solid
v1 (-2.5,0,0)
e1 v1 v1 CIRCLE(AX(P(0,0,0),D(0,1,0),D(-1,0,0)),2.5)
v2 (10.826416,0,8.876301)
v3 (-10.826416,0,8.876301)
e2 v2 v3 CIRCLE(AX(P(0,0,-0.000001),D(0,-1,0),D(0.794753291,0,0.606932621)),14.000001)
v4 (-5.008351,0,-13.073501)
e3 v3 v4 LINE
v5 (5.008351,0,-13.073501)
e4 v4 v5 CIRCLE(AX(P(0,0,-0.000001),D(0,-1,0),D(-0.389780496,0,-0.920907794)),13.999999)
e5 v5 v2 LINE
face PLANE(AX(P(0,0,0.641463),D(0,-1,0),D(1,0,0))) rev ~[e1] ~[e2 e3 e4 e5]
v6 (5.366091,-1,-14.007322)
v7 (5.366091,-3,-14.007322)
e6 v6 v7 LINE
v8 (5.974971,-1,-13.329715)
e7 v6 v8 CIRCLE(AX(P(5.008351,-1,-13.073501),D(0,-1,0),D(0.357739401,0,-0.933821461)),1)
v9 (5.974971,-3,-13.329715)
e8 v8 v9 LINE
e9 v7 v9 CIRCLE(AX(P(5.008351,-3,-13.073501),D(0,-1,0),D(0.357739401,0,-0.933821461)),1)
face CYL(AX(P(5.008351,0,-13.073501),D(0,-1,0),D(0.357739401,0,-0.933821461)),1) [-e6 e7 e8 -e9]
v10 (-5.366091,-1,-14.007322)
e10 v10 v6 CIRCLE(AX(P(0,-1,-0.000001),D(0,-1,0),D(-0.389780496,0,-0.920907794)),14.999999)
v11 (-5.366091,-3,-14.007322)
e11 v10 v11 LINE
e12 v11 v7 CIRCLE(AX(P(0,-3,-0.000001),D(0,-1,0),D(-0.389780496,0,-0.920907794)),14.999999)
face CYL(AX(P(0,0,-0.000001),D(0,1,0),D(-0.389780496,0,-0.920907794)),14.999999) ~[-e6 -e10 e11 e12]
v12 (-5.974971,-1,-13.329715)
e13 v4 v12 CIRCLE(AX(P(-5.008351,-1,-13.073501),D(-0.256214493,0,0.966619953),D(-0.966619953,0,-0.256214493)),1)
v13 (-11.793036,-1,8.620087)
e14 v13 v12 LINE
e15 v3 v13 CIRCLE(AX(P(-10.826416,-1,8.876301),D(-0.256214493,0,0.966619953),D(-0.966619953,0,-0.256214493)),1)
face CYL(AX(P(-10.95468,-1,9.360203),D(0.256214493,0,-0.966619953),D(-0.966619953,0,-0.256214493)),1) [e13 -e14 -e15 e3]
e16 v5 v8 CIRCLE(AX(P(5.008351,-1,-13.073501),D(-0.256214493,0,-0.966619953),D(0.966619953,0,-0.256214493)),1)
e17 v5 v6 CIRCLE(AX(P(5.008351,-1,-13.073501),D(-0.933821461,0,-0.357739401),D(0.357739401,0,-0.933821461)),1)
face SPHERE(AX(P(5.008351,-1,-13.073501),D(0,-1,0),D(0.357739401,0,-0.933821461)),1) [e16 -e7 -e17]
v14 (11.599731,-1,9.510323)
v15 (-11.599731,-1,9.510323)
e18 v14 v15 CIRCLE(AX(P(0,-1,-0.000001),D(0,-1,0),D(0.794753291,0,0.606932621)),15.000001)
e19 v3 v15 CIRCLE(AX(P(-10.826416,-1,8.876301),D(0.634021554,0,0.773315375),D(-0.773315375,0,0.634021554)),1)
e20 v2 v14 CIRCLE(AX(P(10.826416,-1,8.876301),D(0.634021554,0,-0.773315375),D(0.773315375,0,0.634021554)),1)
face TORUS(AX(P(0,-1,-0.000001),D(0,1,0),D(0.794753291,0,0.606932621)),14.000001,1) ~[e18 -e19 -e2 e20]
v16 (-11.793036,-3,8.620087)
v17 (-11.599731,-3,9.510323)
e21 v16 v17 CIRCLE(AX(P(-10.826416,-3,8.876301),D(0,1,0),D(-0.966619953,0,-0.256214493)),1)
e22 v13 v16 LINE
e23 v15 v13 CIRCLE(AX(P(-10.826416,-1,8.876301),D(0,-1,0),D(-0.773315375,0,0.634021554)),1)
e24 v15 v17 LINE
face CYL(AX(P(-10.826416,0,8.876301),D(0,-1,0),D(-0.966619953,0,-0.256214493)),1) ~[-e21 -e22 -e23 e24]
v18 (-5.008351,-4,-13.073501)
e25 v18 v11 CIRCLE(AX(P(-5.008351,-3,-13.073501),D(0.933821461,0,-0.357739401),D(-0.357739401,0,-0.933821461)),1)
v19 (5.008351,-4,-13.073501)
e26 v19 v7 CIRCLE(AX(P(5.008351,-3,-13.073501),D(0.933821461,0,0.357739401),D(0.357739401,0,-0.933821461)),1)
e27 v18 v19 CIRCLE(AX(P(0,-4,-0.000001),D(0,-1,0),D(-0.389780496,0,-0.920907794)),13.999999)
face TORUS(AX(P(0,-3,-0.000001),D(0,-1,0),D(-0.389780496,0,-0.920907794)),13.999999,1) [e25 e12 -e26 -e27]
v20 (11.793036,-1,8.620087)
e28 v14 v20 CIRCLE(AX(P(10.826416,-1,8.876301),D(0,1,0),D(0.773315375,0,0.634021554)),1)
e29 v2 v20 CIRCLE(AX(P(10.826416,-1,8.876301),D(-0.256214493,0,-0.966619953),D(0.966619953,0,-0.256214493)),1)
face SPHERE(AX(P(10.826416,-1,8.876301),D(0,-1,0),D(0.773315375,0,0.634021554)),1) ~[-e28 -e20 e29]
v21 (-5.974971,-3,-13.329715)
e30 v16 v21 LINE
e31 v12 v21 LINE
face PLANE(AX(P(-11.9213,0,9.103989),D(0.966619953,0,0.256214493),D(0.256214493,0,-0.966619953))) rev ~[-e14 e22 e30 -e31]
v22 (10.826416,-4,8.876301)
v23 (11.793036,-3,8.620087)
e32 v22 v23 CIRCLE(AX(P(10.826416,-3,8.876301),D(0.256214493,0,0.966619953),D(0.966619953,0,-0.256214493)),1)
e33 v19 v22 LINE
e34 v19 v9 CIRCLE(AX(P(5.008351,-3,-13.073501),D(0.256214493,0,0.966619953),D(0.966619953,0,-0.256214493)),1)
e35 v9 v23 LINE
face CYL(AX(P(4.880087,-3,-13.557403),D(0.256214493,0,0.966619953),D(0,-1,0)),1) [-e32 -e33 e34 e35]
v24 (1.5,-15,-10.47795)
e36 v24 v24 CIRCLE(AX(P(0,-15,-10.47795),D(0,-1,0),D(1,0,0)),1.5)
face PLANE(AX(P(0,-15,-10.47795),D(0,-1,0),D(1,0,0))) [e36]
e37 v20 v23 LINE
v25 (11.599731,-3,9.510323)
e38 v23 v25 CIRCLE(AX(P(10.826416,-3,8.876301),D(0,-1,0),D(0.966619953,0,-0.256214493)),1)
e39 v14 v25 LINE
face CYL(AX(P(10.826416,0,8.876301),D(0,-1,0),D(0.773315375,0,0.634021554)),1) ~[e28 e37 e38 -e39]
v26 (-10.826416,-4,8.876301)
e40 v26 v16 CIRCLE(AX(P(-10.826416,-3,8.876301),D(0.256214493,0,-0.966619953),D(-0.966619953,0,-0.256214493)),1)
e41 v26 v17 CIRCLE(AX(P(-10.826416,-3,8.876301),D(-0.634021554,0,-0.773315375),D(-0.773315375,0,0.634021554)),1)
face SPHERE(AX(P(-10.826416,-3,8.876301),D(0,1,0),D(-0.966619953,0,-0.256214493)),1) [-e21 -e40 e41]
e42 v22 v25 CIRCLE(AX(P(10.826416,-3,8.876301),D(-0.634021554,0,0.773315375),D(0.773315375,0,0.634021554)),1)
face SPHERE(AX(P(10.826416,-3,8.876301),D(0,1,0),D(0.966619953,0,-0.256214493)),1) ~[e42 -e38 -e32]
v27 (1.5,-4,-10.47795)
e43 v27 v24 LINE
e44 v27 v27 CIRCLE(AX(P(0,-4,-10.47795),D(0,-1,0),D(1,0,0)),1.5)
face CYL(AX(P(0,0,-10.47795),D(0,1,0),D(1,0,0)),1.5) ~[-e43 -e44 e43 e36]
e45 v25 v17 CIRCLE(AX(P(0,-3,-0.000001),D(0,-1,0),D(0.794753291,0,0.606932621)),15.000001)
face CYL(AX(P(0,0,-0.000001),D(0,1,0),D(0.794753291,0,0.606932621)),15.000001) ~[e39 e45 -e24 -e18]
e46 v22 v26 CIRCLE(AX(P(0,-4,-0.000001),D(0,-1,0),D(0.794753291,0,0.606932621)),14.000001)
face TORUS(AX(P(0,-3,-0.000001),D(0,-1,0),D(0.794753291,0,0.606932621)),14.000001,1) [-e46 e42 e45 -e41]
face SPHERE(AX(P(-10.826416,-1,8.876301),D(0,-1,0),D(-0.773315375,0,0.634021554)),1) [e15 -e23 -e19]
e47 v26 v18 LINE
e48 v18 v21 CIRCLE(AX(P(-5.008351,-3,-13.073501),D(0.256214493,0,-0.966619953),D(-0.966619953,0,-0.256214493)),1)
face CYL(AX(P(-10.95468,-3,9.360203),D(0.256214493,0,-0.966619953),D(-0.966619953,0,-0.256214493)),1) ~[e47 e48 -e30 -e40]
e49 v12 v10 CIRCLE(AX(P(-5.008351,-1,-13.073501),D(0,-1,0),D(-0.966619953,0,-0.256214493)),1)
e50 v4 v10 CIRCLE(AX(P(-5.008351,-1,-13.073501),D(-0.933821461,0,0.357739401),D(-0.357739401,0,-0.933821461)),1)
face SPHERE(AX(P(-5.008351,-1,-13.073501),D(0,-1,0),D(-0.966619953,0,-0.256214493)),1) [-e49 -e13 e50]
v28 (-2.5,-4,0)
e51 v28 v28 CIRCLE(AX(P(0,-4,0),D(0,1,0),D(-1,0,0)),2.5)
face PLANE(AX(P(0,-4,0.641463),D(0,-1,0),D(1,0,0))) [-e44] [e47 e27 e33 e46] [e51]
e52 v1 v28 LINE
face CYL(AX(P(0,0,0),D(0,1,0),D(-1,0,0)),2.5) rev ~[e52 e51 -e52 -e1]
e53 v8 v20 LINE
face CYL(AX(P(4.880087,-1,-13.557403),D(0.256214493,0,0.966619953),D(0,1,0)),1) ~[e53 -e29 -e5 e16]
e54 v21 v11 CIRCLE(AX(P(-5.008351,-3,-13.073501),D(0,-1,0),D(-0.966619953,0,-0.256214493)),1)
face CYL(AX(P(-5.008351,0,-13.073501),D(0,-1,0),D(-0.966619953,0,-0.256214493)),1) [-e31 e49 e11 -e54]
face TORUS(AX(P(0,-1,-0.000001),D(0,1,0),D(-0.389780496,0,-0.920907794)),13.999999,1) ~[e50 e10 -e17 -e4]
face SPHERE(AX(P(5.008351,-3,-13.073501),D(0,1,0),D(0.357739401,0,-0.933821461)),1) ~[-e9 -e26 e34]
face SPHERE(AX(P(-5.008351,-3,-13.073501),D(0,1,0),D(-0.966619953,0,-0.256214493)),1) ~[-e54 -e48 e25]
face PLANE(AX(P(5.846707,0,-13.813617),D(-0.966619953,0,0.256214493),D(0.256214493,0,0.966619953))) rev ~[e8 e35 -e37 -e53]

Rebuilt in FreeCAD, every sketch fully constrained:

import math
import FreeCAD as App
import Part
import Sketcher
Q = App.Units.Quantity


def edges_at(feature, points):
    """Names of the edges that pass closest to the given points."""
    edges = feature.Shape.Edges
    near = lambda p: min(range(len(edges)), key=lambda i: edges[i].distToShape(Part.Vertex(*p))[0])
    return sorted({f"Edge{near(p) + 1}" for p in points})

doc = App.newDocument("Part")
params = doc.addObject("Spreadsheet::Sheet", "Params")
for row, (alias, value) in enumerate([
    ("sketch1_diameter", "3 mm"),
    ("pad1_length", "15 mm"),
    ("sketch2_diameter", "3 mm"),
    ("sketch2_radius", "14.999999 mm"),
    ("pad2_length", "4 mm"),
    ("sketch3_diameter", "5 mm"),
    ("pocket1_length", "25 mm"),
    ("fillet_radius", "1 mm"),
], start=1):
    params.set(f"A{row}", alias)
    params.set(f"B{row}", "=" + value)
    params.setAlias(f"B{row}", alias)

body = doc.addObject("PartDesign::Body", "Body")

sketch1 = doc.addObject("Sketcher::SketchObject", "Sketch")
body.addObject(sketch1)
sketch1.AttachmentSupport = (doc.XZ_Plane, [""])
sketch1.MapMode = "FlatFace"
sketch1.addGeometry(Part.Circle(App.Vector(0, -10.5, 0), App.Vector(0, 0, 1), 1.5), False)
sketch1.addConstraint([
    Sketcher.Constraint("PointOnObject", 0, 3, -2),
    Sketcher.Constraint("Diameter", 0, Q("3 mm")),
    Sketcher.Constraint("DistanceY", 0, 3, -1, 1, Q("10.47795 mm")),
])
sketch1.setExpression("Constraints[1]", "Params.sketch1_diameter")
pad1 = doc.addObject("PartDesign::Pad", "Pad")
body.addObject(pad1)
pad1.Profile = sketch1
pad1.setExpression("Length", "Params.pad1_length")

sketch2 = doc.addObject("Sketcher::SketchObject", "Sketch001")
body.addObject(sketch2)
sketch2.AttachmentSupport = (doc.XZ_Plane, [""])
sketch2.MapMode = "FlatFace"
sketch2.addGeometry([
    Part.LineSegment(App.Vector(-11.9, 9.1, 0), App.Vector(-5.8, -13.8, 0)),
    Part.ArcOfCircle(Part.Circle(App.Vector(0, 0, 0), App.Vector(0, 0, 1), 15), math.radians(-113), math.radians(-67)),
    Part.LineSegment(App.Vector(5.8, -13.8, 0), App.Vector(11.9, 9.1, 0)),
    Part.ArcOfCircle(Part.Circle(App.Vector(0, 0, 0), App.Vector(0, 0, 1), 15), math.radians(37), math.radians(143)),
    Part.Circle(App.Vector(0, -10.5, 0), App.Vector(0, 0, 1), 1.5),
], False)
sketch2.addConstraint([
    Sketcher.Constraint("Coincident", 0, 2, 1, 1),
    Sketcher.Constraint("Coincident", 1, 2, 2, 1),
    Sketcher.Constraint("Coincident", 2, 2, 3, 1),
    Sketcher.Constraint("Coincident", 3, 2, 0, 1),
    Sketcher.Constraint("Coincident", 1, 3, -1, 1),
    Sketcher.Constraint("Coincident", 3, 3, -1, 1),
    Sketcher.Constraint("Equal", 1, 3),
    Sketcher.Constraint("PointOnObject", 4, 3, -2),
    Sketcher.Constraint("Horizontal", 0, 2, 1, 2),
    Sketcher.Constraint("Horizontal", 2, 2, 3, 2),
    Sketcher.Constraint("Diameter", 4, Q("3 mm")),
    Sketcher.Constraint("Radius", 1, Q("14.999999 mm")),
    Sketcher.Constraint("DistanceX", -1, 1, 2, 2, Q("11.9213 mm")),
    Sketcher.Constraint("DistanceY", 4, 3, -1, 1, Q("10.47795 mm")),
    Sketcher.Constraint("Distance", 0, Q("23.709014 mm")),
])
sketch2.setExpression("Constraints[10]", "Params.sketch2_diameter")
sketch2.setExpression("Constraints[11]", "Params.sketch2_radius")
pad2 = doc.addObject("PartDesign::Pad", "Pad001")
body.addObject(pad2)
pad2.Profile = sketch2
pad2.setExpression("Length", "Params.pad2_length")

sketch3 = doc.addObject("Sketcher::SketchObject", "Sketch002")
body.addObject(sketch3)
sketch3.AttachmentSupport = (doc.XZ_Plane, [""])
sketch3.MapMode = "FlatFace"
sketch3.addGeometry(Part.Circle(App.Vector(0, 0, 0), App.Vector(0, 0, 1), 2.5), False)
sketch3.addConstraint([
    Sketcher.Constraint("Coincident", 0, 3, -1, 1),
    Sketcher.Constraint("Diameter", 0, Q("5 mm")),
])
sketch3.setExpression("Constraints[1]", "Params.sketch3_diameter")
pocket1 = doc.addObject("PartDesign::Pocket", "Pocket")
body.addObject(pocket1)
pocket1.Profile = sketch3
pocket1.setExpression("Length", "Params.pocket1_length")
pocket1.Reversed = True
doc.recompute()

fillet = doc.addObject("PartDesign::Fillet", "Fillet")
body.addObject(fillet)
fillet.Base = (pocket1, edges_at(pocket1, [
    (0, -4, 15),
    (11.921, -2, 9.104),
    (-11.921, -2, 9.104),
    (0, 0, 15),
    (5.847, -2, -13.814),
    (0, -4, -15),
    (0, 0, -15),
    (-5.847, -2, -13.814),
    (-8.884, 0, -2.355),
    (-8.884, -4, -2.355),
    (8.884, -4, -2.355),
    (8.884, 0, -2.355),
]))
fillet.setExpression("Radius", "Params.fillet_radius")

doc.recompute()
